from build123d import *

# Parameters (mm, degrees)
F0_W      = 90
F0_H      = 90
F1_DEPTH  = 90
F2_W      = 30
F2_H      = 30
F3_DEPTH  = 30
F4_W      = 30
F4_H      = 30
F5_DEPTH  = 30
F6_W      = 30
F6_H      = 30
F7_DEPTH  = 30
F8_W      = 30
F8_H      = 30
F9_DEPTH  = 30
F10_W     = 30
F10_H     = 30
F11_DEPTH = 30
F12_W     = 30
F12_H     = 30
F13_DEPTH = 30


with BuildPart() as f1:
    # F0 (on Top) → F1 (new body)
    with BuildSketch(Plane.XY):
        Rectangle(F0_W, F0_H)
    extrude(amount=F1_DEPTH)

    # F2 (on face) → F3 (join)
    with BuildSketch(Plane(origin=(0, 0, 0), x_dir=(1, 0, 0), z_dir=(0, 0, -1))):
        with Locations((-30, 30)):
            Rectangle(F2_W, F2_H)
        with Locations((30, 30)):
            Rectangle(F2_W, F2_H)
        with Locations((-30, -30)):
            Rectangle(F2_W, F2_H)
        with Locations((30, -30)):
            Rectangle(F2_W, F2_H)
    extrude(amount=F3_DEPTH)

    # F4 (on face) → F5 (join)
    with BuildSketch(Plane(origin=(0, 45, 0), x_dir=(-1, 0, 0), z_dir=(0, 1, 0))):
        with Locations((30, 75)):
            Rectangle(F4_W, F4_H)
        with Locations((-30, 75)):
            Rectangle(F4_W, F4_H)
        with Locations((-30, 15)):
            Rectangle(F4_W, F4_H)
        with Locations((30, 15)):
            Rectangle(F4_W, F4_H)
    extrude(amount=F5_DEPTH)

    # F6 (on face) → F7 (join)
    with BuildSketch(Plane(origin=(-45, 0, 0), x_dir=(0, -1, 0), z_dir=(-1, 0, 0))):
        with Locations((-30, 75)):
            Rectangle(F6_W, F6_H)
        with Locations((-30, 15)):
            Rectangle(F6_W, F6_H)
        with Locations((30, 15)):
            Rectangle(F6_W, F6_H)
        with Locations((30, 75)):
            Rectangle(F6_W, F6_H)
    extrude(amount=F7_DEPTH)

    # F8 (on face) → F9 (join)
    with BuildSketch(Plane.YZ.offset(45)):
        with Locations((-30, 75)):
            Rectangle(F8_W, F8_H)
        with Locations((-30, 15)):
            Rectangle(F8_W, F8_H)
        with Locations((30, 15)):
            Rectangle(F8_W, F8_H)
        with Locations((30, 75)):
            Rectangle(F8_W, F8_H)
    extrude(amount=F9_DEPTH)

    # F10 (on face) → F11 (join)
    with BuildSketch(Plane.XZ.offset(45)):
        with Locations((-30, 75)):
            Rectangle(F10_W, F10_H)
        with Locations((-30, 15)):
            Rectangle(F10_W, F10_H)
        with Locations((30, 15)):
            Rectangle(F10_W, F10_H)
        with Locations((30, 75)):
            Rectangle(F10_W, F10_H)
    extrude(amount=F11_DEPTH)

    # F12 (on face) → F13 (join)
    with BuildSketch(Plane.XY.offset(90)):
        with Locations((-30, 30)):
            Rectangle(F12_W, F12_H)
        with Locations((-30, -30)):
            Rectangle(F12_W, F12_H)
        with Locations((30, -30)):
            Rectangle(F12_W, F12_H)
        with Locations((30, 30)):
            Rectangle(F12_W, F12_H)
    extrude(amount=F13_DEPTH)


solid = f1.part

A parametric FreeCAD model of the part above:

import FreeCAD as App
import Part
import Sketcher
from FreeCAD import Vector
Q = App.Units.Quantity

doc = App.newDocument("Part")
params = doc.addObject("Spreadsheet::Sheet", "Params")
for row, (alias, value) in enumerate([
    ("sketch1_width", "90 mm"),
    ("pad1_length", "90 mm"),
    ("sketch2_width", "30 mm"),
    ("pad2_length", "30 mm"),
    ("sketch3_width", "30 mm"),
    ("pad3_length", "30 mm"),
    ("sketch4_width", "30 mm"),
    ("pad4_length", "30 mm"),
    ("sketch5_width", "30 mm"),
    ("pad5_length", "30 mm"),
    ("sketch6_width", "30 mm"),
    ("pad6_length", "30 mm"),
    ("sketch7_width", "30 mm"),
    ("pad7_length", "30 mm"),
], start=1):
    params.set(f"A{row}", alias)
    params.set(f"B{row}", "=" + value)
    params.setAlias(f"B{row}", alias)

body = doc.addObject("PartDesign::Body", "Body")

sketch1 = body.newObject("Sketcher::SketchObject", "Sketch")
sketch1.AttachmentSupport = (doc.getObject("XY_Plane"), [""])
sketch1.MapMode = "FlatFace"
sketch1.addGeometry([
    Part.LineSegment(Vector(-45, 45, 0), Vector(-45, -45, 0)),
    Part.LineSegment(Vector(-45, -45, 0), Vector(45, -45, 0)),
    Part.LineSegment(Vector(45, -45, 0), Vector(45, 45, 0)),
    Part.LineSegment(Vector(45, 45, 0), Vector(-45, 45, 0)),
], False)
sketch1.addConstraint([
    Sketcher.Constraint("Coincident", 0, 2, 1, 1),
    Sketcher.Constraint("Coincident", 1, 2, 2, 1),
    Sketcher.Constraint("Coincident", 2, 2, 3, 1),
    Sketcher.Constraint("Coincident", 3, 2, 0, 1),
    Sketcher.Constraint("Vertical", 0),
    Sketcher.Constraint("Horizontal", 1),
    Sketcher.Constraint("Vertical", 2),
    Sketcher.Constraint("Horizontal", 3),
    Sketcher.Constraint("Symmetric", 0, 2, 2, 2, -1, 1),
    Sketcher.Constraint("Equal", 3, 0),
    Sketcher.Constraint("DistanceX", 1, 1, 1, 2, Q("90 mm")),
])
sketch1.setExpression("Constraints[10]", "Params.sketch1_width")
pad1 = body.newObject("PartDesign::Pad", "Pad")
pad1.Profile = sketch1
pad1.setExpression("Length", "Params.pad1_length")

sketch2 = body.newObject("Sketcher::SketchObject", "Sketch001")
sketch2.AttachmentSupport = (doc.getObject("XY_Plane"), [""])
sketch2.MapMode = "FlatFace"
sketch2.addGeometry([
    Part.LineSegment(Vector(-45, -45, 0), Vector(-45, -15, 0)),
    Part.LineSegment(Vector(-45, -15, 0), Vector(-15, -15, 0)),
    Part.LineSegment(Vector(-15, -15, 0), Vector(-15, -45, 0)),
    Part.LineSegment(Vector(-15, -45, 0), Vector(-45, -45, 0)),
    Part.LineSegment(Vector(15, -45, 0), Vector(15, -15, 0)),
    Part.LineSegment(Vector(15, -15, 0), Vector(45, -15, 0)),
    Part.LineSegment(Vector(45, -15, 0), Vector(45, -45, 0)),
    Part.LineSegment(Vector(45, -45, 0), Vector(15, -45, 0)),
    Part.LineSegment(Vector(-45, 15, 0), Vector(-45, 45, 0)),
    Part.LineSegment(Vector(-45, 45, 0), Vector(-15, 45, 0)),
    Part.LineSegment(Vector(-15, 45, 0), Vector(-15, 15, 0)),
    Part.LineSegment(Vector(-15, 15, 0), Vector(-45, 15, 0)),
    Part.LineSegment(Vector(15, 15, 0), Vector(15, 45, 0)),
    Part.LineSegment(Vector(15, 45, 0), Vector(45, 45, 0)),
    Part.LineSegment(Vector(45, 45, 0), Vector(45, 15, 0)),
    Part.LineSegment(Vector(45, 15, 0), Vector(15, 15, 0)),
], False)
sketch2.addConstraint([
    Sketcher.Constraint("Coincident", 0, 2, 1, 1),
    Sketcher.Constraint("Coincident", 1, 2, 2, 1),
    Sketcher.Constraint("Coincident", 2, 2, 3, 1),
    Sketcher.Constraint("Coincident", 3, 2, 0, 1),
    Sketcher.Constraint("Coincident", 4, 2, 5, 1),
    Sketcher.Constraint("Coincident", 5, 2, 6, 1),
    Sketcher.Constraint("Coincident", 6, 2, 7, 1),
    Sketcher.Constraint("Coincident", 7, 2, 4, 1),
    Sketcher.Constraint("Coincident", 8, 2, 9, 1),
    Sketcher.Constraint("Coincident", 9, 2, 10, 1),
    Sketcher.Constraint("Coincident", 10, 2, 11, 1),
    Sketcher.Constraint("Coincident", 11, 2, 8, 1),
    Sketcher.Constraint("Coincident", 12, 2, 13, 1),
    Sketcher.Constraint("Coincident", 13, 2, 14, 1),
    Sketcher.Constraint("Coincident", 14, 2, 15, 1),
    Sketcher.Constraint("Coincident", 15, 2, 12, 1),
    Sketcher.Constraint("Vertical", 0),
    Sketcher.Constraint("Horizontal", 1),
    Sketcher.Constraint("Vertical", 2),
    Sketcher.Constraint("Horizontal", 3),
    Sketcher.Constraint("Vertical", 4),
    Sketcher.Constraint("Horizontal", 5),
    Sketcher.Constraint("Vertical", 6),
    Sketcher.Constraint("Horizontal", 7),
    Sketcher.Constraint("Vertical", 8),
    Sketcher.Constraint("Horizontal", 9),
    Sketcher.Constraint("Vertical", 10),
    Sketcher.Constraint("Horizontal", 11),
    Sketcher.Constraint("Vertical", 12),
    Sketcher.Constraint("Horizontal", 13),
    Sketcher.Constraint("Vertical", 14),
    Sketcher.Constraint("Horizontal", 15),
    Sketcher.Constraint("Symmetric", 6, 2, 8, 2, -1, 1),
    Sketcher.Constraint("Symmetric", 4, 2, 10, 2, -1, 1),
    Sketcher.Constraint("Symmetric", 2, 2, 12, 2, -1, 1),
    Sketcher.Constraint("Symmetric", 0, 2, 14, 2, -1, 1),
    Sketcher.Constraint("Symmetric", 1, 2, 4, 2, -2),
    Sketcher.Constraint("Symmetric", 3, 2, 6, 2, -2),
    Sketcher.Constraint("Equal", 15, 0),
    Sketcher.Constraint("DistanceX", 1, 1, 1, 2, Q("30 mm")),
    Sketcher.Constraint("DistanceX", 0, 2, -1, 1, Q("45 mm")),
    Sketcher.Constraint("DistanceY", 0, 2, -1, 1, Q("15 mm")),
])
sketch2.setExpression("Constraints[39]", "Params.sketch2_width")
pad2 = body.newObject("PartDesign::Pad", "Pad001")
pad2.Profile = sketch2
pad2.setExpression("Length", "Params.pad2_length")
pad2.Reversed = True

sketch3 = body.newObject("Sketcher::SketchObject", "Sketch002")
sketch3.AttachmentSupport = (doc.getObject("XZ_Plane"), [""])
sketch3.MapMode = "FlatFace"
sketch3.AttachmentOffset = App.Placement(Vector(0, 0, -45), App.Rotation())
sketch3.addGeometry([
    Part.LineSegment(Vector(-15, 90, 0), Vector(-15, 60, 0)),
    Part.LineSegment(Vector(-15, 60, 0), Vector(-45, 60, 0)),
    Part.LineSegment(Vector(-45, 60, 0), Vector(-45, 90, 0)),
    Part.LineSegment(Vector(-45, 90, 0), Vector(-15, 90, 0)),
    Part.LineSegment(Vector(45, 90, 0), Vector(45, 60, 0)),
    Part.LineSegment(Vector(45, 60, 0), Vector(15, 60, 0)),
    Part.LineSegment(Vector(15, 60, 0), Vector(15, 90, 0)),
    Part.LineSegment(Vector(15, 90, 0), Vector(45, 90, 0)),
    Part.LineSegment(Vector(45, 30, 0), Vector(45, 0, 0)),
    Part.LineSegment(Vector(45, 0, 0), Vector(15, 0, 0)),
    Part.LineSegment(Vector(15, 0, 0), Vector(15, 30, 0)),
    Part.LineSegment(Vector(15, 30, 0), Vector(45, 30, 0)),
    Part.LineSegment(Vector(-15, 30, 0), Vector(-15, 0, 0)),
    Part.LineSegment(Vector(-15, 0, 0), Vector(-45, 0, 0)),
    Part.LineSegment(Vector(-45, 0, 0), Vector(-45, 30, 0)),
    Part.LineSegment(Vector(-45, 30, 0), Vector(-15, 30, 0)),
], False)
sketch3.addConstraint([
    Sketcher.Constraint("Coincident", 0, 2, 1, 1),
    Sketcher.Constraint("Coincident", 1, 2, 2, 1),
    Sketcher.Constraint("Coincident", 2, 2, 3, 1),
    Sketcher.Constraint("Coincident", 3, 2, 0, 1),
    Sketcher.Constraint("Coincident", 4, 2, 5, 1),
    Sketcher.Constraint("Coincident", 5, 2, 6, 1),
    Sketcher.Constraint("Coincident", 6, 2, 7, 1),
    Sketcher.Constraint("Coincident", 7, 2, 4, 1),
    Sketcher.Constraint("Coincident", 8, 2, 9, 1),
    Sketcher.Constraint("Coincident", 9, 2, 10, 1),
    Sketcher.Constraint("Coincident", 10, 2, 11, 1),
    Sketcher.Constraint("Coincident", 11, 2, 8, 1),
    Sketcher.Constraint("Coincident", 12, 2, 13, 1),
    Sketcher.Constraint("Coincident", 13, 2, 14, 1),
    Sketcher.Constraint("Coincident", 14, 2, 15, 1),
    Sketcher.Constraint("Coincident", 15, 2, 12, 1),
    Sketcher.Constraint("Vertical", 0),
    Sketcher.Constraint("Horizontal", 1),
    Sketcher.Constraint("Vertical", 2),
    Sketcher.Constraint("Horizontal", 3),
    Sketcher.Constraint("Vertical", 4),
    Sketcher.Constraint("Horizontal", 5),
    Sketcher.Constraint("Vertical", 6),
    Sketcher.Constraint("Horizontal", 7),
    Sketcher.Constraint("Vertical", 8),
    Sketcher.Constraint("Horizontal", 9),
    Sketcher.Constraint("Vertical", 10),
    Sketcher.Constraint("Horizontal", 11),
    Sketcher.Constraint("Vertical", 12),
    Sketcher.Constraint("Horizontal", 13),
    Sketcher.Constraint("Vertical", 14),
    Sketcher.Constraint("Horizontal", 15),
    Sketcher.Constraint("Symmetric", 9, 2, 12, 2, -1, 1),
    Sketcher.Constraint("Symmetric", 1, 2, 4, 2, -2),
    Sketcher.Constraint("Symmetric", 3, 2, 6, 2, -2),
    Sketcher.Constraint("Symmetric", 8, 2, 13, 2, -2),
    Sketcher.Constraint("Horizontal", 11, 2, 14, 2),
    Sketcher.Constraint("Vertical", 7, 2, 8, 2),
    Sketcher.Constraint("Vertical", 6, 2, 9, 2),
    Sketcher.Constraint("Equal", 15, 0),
    Sketcher.Constraint("Equal", 6, 8),
    Sketcher.Constraint("DistanceX", 1, 2, 1, 1, Q("30 mm")),
    Sketcher.Constraint("DistanceX", 0, 2, -1, 1, Q("15 mm")),
    Sketcher.Constraint("DistanceY", -1, 1, 0, 2, Q("60 mm")),
])
sketch3.setExpression("Constraints[41]", "Params.sketch3_width")
pad3 = body.newObject("PartDesign::Pad", "Pad002")
pad3.Profile = sketch3
pad3.setExpression("Length", "Params.pad3_length")
pad3.Reversed = True

sketch4 = body.newObject("Sketcher::SketchObject", "Sketch003")
sketch4.AttachmentSupport = (doc.getObject("YZ_Plane"), [""])
sketch4.MapMode = "FlatFace"
sketch4.AttachmentOffset = App.Placement(Vector(0, 0, -45), App.Rotation())
sketch4.addGeometry([
    Part.LineSegment(Vector(45, 90, 0), Vector(45, 60, 0)),
    Part.LineSegment(Vector(45, 60, 0), Vector(15, 60, 0)),
    Part.LineSegment(Vector(15, 60, 0), Vector(15, 90, 0)),
    Part.LineSegment(Vector(15, 90, 0), Vector(45, 90, 0)),
    Part.LineSegment(Vector(45, 30, 0), Vector(45, 0, 0)),
    Part.LineSegment(Vector(45, 0, 0), Vector(15, 0, 0)),
    Part.LineSegment(Vector(15, 0, 0), Vector(15, 30, 0)),
    Part.LineSegment(Vector(15, 30, 0), Vector(45, 30, 0)),
    Part.LineSegment(Vector(-15, 30, 0), Vector(-15, 0, 0)),
    Part.LineSegment(Vector(-15, 0, 0), Vector(-45, 0, 0)),
    Part.LineSegment(Vector(-45, 0, 0), Vector(-45, 30, 0)),
    Part.LineSegment(Vector(-45, 30, 0), Vector(-15, 30, 0)),
    Part.LineSegment(Vector(-15, 90, 0), Vector(-15, 60, 0)),
    Part.LineSegment(Vector(-15, 60, 0), Vector(-45, 60, 0)),
    Part.LineSegment(Vector(-45, 60, 0), Vector(-45, 90, 0)),
    Part.LineSegment(Vector(-45, 90, 0), Vector(-15, 90, 0)),
], False)
sketch4.addConstraint([
    Sketcher.Constraint("Coincident", 0, 2, 1, 1),
    Sketcher.Constraint("Coincident", 1, 2, 2, 1),
    Sketcher.Constraint("Coincident", 2, 2, 3, 1),
    Sketcher.Constraint("Coincident", 3, 2, 0, 1),
    Sketcher.Constraint("Coincident", 4, 2, 5, 1),
    Sketcher.Constraint("Coincident", 5, 2, 6, 1),
    Sketcher.Constraint("Coincident", 6, 2, 7, 1),
    Sketcher.Constraint("Coincident", 7, 2, 4, 1),
    Sketcher.Constraint("Coincident", 8, 2, 9, 1),
    Sketcher.Constraint("Coincident", 9, 2, 10, 1),
    Sketcher.Constraint("Coincident", 10, 2, 11, 1),
    Sketcher.Constraint("Coincident", 11, 2, 8, 1),
    Sketcher.Constraint("Coincident", 12, 2, 13, 1),
    Sketcher.Constraint("Coincident", 13, 2, 14, 1),
    Sketcher.Constraint("Coincident", 14, 2, 15, 1),
    Sketcher.Constraint("Coincident", 15, 2, 12, 1),
    Sketcher.Constraint("Vertical", 0),
    Sketcher.Constraint("Horizontal", 1),
    Sketcher.Constraint("Vertical", 2),
    Sketcher.Constraint("Horizontal", 3),
    Sketcher.Constraint("Vertical", 4),
    Sketcher.Constraint("Horizontal", 5),
    Sketcher.Constraint("Vertical", 6),
    Sketcher.Constraint("Horizontal", 7),
    Sketcher.Constraint("Vertical", 8),
    Sketcher.Constraint("Horizontal", 9),
    Sketcher.Constraint("Vertical", 10),
    Sketcher.Constraint("Horizontal", 11),
    Sketcher.Constraint("Vertical", 12),
    Sketcher.Constraint("Horizontal", 13),
    Sketcher.Constraint("Vertical", 14),
    Sketcher.Constraint("Horizontal", 15),
    Sketcher.Constraint("Symmetric", 5, 2, 8, 2, -1, 1),
    Sketcher.Constraint("Symmetric", 4, 2, 9, 2, -2),
    Sketcher.Constraint("Symmetric", 1, 2, 12, 2, -2),
    Sketcher.Constraint("Symmetric", 3, 2, 14, 2, -2),
    Sketcher.Constraint("Horizontal", 7, 2, 10, 2),
    Sketcher.Constraint("Vertical", 3, 2, 4, 2),
    Sketcher.Constraint("Vertical", 2, 2, 5, 2),
    Sketcher.Constraint("Equal", 15, 0),
    Sketcher.Constraint("Equal", 2, 4),
    Sketcher.Constraint("DistanceX", 1, 2, 1, 1, Q("30 mm")),
    Sketcher.Constraint("DistanceX", -1, 1, 0, 2, Q("45 mm")),
    Sketcher.Constraint("DistanceY", -1, 1, 0, 2, Q("60 mm")),
])
sketch4.setExpression("Constraints[41]", "Params.sketch4_width")
pad4 = body.newObject("PartDesign::Pad", "Pad003")
pad4.Profile = sketch4
pad4.setExpression("Length", "Params.pad4_length")
pad4.Reversed = True

sketch5 = body.newObject("Sketcher::SketchObject", "Sketch004")
sketch5.AttachmentSupport = (doc.getObject("YZ_Plane"), [""])
sketch5.MapMode = "FlatFace"
sketch5.AttachmentOffset = App.Placement(Vector(0, 0, 45), App.Rotation())
sketch5.addGeometry([
    Part.LineSegment(Vector(-45, 90, 0), Vector(-45, 60, 0)),
    Part.LineSegment(Vector(-45, 60, 0), Vector(-15, 60, 0)),
    Part.LineSegment(Vector(-15, 60, 0), Vector(-15, 90, 0)),
    Part.LineSegment(Vector(-15, 90, 0), Vector(-45, 90, 0)),
    Part.LineSegment(Vector(-45, 30, 0), Vector(-45, 0, 0)),
    Part.LineSegment(Vector(-45, 0, 0), Vector(-15, 0, 0)),
    Part.LineSegment(Vector(-15, 0, 0), Vector(-15, 30, 0)),
    Part.LineSegment(Vector(-15, 30, 0), Vector(-45, 30, 0)),
    Part.LineSegment(Vector(15, 30, 0), Vector(15, 0, 0)),
    Part.LineSegment(Vector(15, 0, 0), Vector(45, 0, 0)),
    Part.LineSegment(Vector(45, 0, 0), Vector(45, 30, 0)),
    Part.LineSegment(Vector(45, 30, 0), Vector(15, 30, 0)),
    Part.LineSegment(Vector(15, 90, 0), Vector(15, 60, 0)),
    Part.LineSegment(Vector(15, 60, 0), Vector(45, 60, 0)),
    Part.LineSegment(Vector(45, 60, 0), Vector(45, 90, 0)),
    Part.LineSegment(Vector(45, 90, 0), Vector(15, 90, 0)),
], False)
sketch5.addConstraint([
    Sketcher.Constraint("Coincident", 0, 2, 1, 1),
    Sketcher.Constraint("Coincident", 1, 2, 2, 1),
    Sketcher.Constraint("Coincident", 2, 2, 3, 1),
    Sketcher.Constraint("Coincident", 3, 2, 0, 1),
    Sketcher.Constraint("Coincident", 4, 2, 5, 1),
    Sketcher.Constraint("Coincident", 5, 2, 6, 1),
    Sketcher.Constraint("Coincident", 6, 2, 7, 1),
    Sketcher.Constraint("Coincident", 7, 2, 4, 1),
    Sketcher.Constraint("Coincident", 8, 2, 9, 1),
    Sketcher.Constraint("Coincident", 9, 2, 10, 1),
    Sketcher.Constraint("Coincident", 10, 2, 11, 1),
    Sketcher.Constraint("Coincident", 11, 2, 8, 1),
    Sketcher.Constraint("Coincident", 12, 2, 13, 1),
    Sketcher.Constraint("Coincident", 13, 2, 14, 1),
    Sketcher.Constraint("Coincident", 14, 2, 15, 1),
    Sketcher.Constraint("Coincident", 15, 2, 12, 1),
    Sketcher.Constraint("Vertical", 0),
    Sketcher.Constraint("Horizontal", 1),
    Sketcher.Constraint("Vertical", 2),
    Sketcher.Constraint("Horizontal", 3),
    Sketcher.Constraint("Vertical", 4),
    Sketcher.Constraint("Horizontal", 5),
    Sketcher.Constraint("Vertical", 6),
    Sketcher.Constraint("Horizontal", 7),
    Sketcher.Constraint("Vertical", 8),
    Sketcher.Constraint("Horizontal", 9),
    Sketcher.Constraint("Vertical", 10),
    Sketcher.Constraint("Horizontal", 11),
    Sketcher.Constraint("Vertical", 12),
    Sketcher.Constraint("Horizontal", 13),
    Sketcher.Constraint("Vertical", 14),
    Sketcher.Constraint("Horizontal", 15),
    Sketcher.Constraint("Symmetric", 5, 2, 8, 2, -1, 1),
    Sketcher.Constraint("Symmetric", 4, 2, 9, 2, -2),
    Sketcher.Constraint("Symmetric", 1, 2, 12, 2, -2),
    Sketcher.Constraint("Symmetric", 3, 2, 14, 2, -2),
    Sketcher.Constraint("Horizontal", 7, 2, 10, 2),
    Sketcher.Constraint("Vertical", 3, 2, 4, 2),
    Sketcher.Constraint("Vertical", 2, 2, 5, 2),
    Sketcher.Constraint("Equal", 15, 0),
    Sketcher.Constraint("Equal", 2, 4),
    Sketcher.Constraint("DistanceX", 1, 1, 1, 2, Q("30 mm")),
    Sketcher.Constraint("DistanceX", 0, 2, -1, 1, Q("45 mm")),
    Sketcher.Constraint("DistanceY", -1, 1, 0, 2, Q("60 mm")),
])
sketch5.setExpression("Constraints[41]", "Params.sketch5_width")
pad5 = body.newObject("PartDesign::Pad", "Pad004")
pad5.Profile = sketch5
pad5.setExpression("Length", "Params.pad5_length")

sketch6 = body.newObject("Sketcher::SketchObject", "Sketch005")
sketch6.AttachmentSupport = (doc.getObject("XZ_Plane"), [""])
sketch6.MapMode = "FlatFace"
sketch6.AttachmentOffset = App.Placement(Vector(0, 0, 45), App.Rotation())
sketch6.addGeometry([
    Part.LineSegment(Vector(-45, 90, 0), Vector(-45, 60, 0)),
    Part.LineSegment(Vector(-45, 60, 0), Vector(-15, 60, 0)),
    Part.LineSegment(Vector(-15, 60, 0), Vector(-15, 90, 0)),
    Part.LineSegment(Vector(-15, 90, 0), Vector(-45, 90, 0)),
    Part.LineSegment(Vector(-45, 30, 0), Vector(-45, 0, 0)),
    Part.LineSegment(Vector(-45, 0, 0), Vector(-15, 0, 0)),
    Part.LineSegment(Vector(-15, 0, 0), Vector(-15, 30, 0)),
    Part.LineSegment(Vector(-15, 30, 0), Vector(-45, 30, 0)),
    Part.LineSegment(Vector(15, 30, 0), Vector(15, 0, 0)),
    Part.LineSegment(Vector(15, 0, 0), Vector(45, 0, 0)),
    Part.LineSegment(Vector(45, 0, 0), Vector(45, 30, 0)),
    Part.LineSegment(Vector(45, 30, 0), Vector(15, 30, 0)),
    Part.LineSegment(Vector(15, 90, 0), Vector(15, 60, 0)),
    Part.LineSegment(Vector(15, 60, 0), Vector(45, 60, 0)),
    Part.LineSegment(Vector(45, 60, 0), Vector(45, 90, 0)),
    Part.LineSegment(Vector(45, 90, 0), Vector(15, 90, 0)),
], False)
sketch6.addConstraint([
    Sketcher.Constraint("Coincident", 0, 2, 1, 1),
    Sketcher.Constraint("Coincident", 1, 2, 2, 1),
    Sketcher.Constraint("Coincident", 2, 2, 3, 1),
    Sketcher.Constraint("Coincident", 3, 2, 0, 1),
    Sketcher.Constraint("Coincident", 4, 2, 5, 1),
    Sketcher.Constraint("Coincident", 5, 2, 6, 1),
    Sketcher.Constraint("Coincident", 6, 2, 7, 1),
    Sketcher.Constraint("Coincident", 7, 2, 4, 1),
    Sketcher.Constraint("Coincident", 8, 2, 9, 1),
    Sketcher.Constraint("Coincident", 9, 2, 10, 1),
    Sketcher.Constraint("Coincident", 10, 2, 11, 1),
    Sketcher.Constraint("Coincident", 11, 2, 8, 1),
    Sketcher.Constraint("Coincident", 12, 2, 13, 1),
    Sketcher.Constraint("Coincident", 13, 2, 14, 1),
    Sketcher.Constraint("Coincident", 14, 2, 15, 1),
    Sketcher.Constraint("Coincident", 15, 2, 12, 1),
    Sketcher.Constraint("Vertical", 0),
    Sketcher.Constraint("Horizontal", 1),
    Sketcher.Constraint("Vertical", 2),
    Sketcher.Constraint("Horizontal", 3),
    Sketcher.Constraint("Vertical", 4),
    Sketcher.Constraint("Horizontal", 5),
    Sketcher.Constraint("Vertical", 6),
    Sketcher.Constraint("Horizontal", 7),
    Sketcher.Constraint("Vertical", 8),
    Sketcher.Constraint("Horizontal", 9),
    Sketcher.Constraint("Vertical", 10),
    Sketcher.Constraint("Horizontal", 11),
    Sketcher.Constraint("Vertical", 12),
    Sketcher.Constraint("Horizontal", 13),
    Sketcher.Constraint("Vertical", 14),
    Sketcher.Constraint("Horizontal", 15),
    Sketcher.Constraint("Symmetric", 5, 2, 8, 2, -1, 1),
    Sketcher.Constraint("Symmetric", 4, 2, 9, 2, -2),
    Sketcher.Constraint("Symmetric", 1, 2, 12, 2, -2),
    Sketcher.Constraint("Symmetric", 3, 2, 14, 2, -2),
    Sketcher.Constraint("Horizontal", 7, 2, 10, 2),
    Sketcher.Constraint("Vertical", 3, 2, 4, 2),
    Sketcher.Constraint("Vertical", 2, 2, 5, 2),
    Sketcher.Constraint("Equal", 15, 0),
    Sketcher.Constraint("Equal", 2, 4),
    Sketcher.Constraint("DistanceX", 1, 1, 1, 2, Q("30 mm")),
    Sketcher.Constraint("DistanceX", 0, 2, -1, 1, Q("45 mm")),
    Sketcher.Constraint("DistanceY", -1, 1, 0, 2, Q("60 mm")),
])
sketch6.setExpression("Constraints[41]", "Params.sketch6_width")
pad6 = body.newObject("PartDesign::Pad", "Pad005")
pad6.Profile = sketch6
pad6.setExpression("Length", "Params.pad6_length")

sketch7 = body.newObject("Sketcher::SketchObject", "Sketch006")
sketch7.AttachmentSupport = (doc.getObject("XY_Plane"), [""])
sketch7.MapMode = "FlatFace"
sketch7.AttachmentOffset = App.Placement(Vector(0, 0, 90), App.Rotation())
sketch7.addGeometry([
    Part.LineSegment(Vector(-45, 45, 0), Vector(-45, 15, 0)),
    Part.LineSegment(Vector(-45, 15, 0), Vector(-15, 15, 0)),
    Part.LineSegment(Vector(-15, 15, 0), Vector(-15, 45, 0)),
    Part.LineSegment(Vector(-15, 45, 0), Vector(-45, 45, 0)),
    Part.LineSegment(Vector(-45, -15, 0), Vector(-45, -45, 0)),
    Part.LineSegment(Vector(-45, -45, 0), Vector(-15, -45, 0)),
    Part.LineSegment(Vector(-15, -45, 0), Vector(-15, -15, 0)),
    Part.LineSegment(Vector(-15, -15, 0), Vector(-45, -15, 0)),
    Part.LineSegment(Vector(15, -15, 0), Vector(15, -45, 0)),
    Part.LineSegment(Vector(15, -45, 0), Vector(45, -45, 0)),
    Part.LineSegment(Vector(45, -45, 0), Vector(45, -15, 0)),
    Part.LineSegment(Vector(45, -15, 0), Vector(15, -15, 0)),
    Part.LineSegment(Vector(15, 45, 0), Vector(15, 15, 0)),
    Part.LineSegment(Vector(15, 15, 0), Vector(45, 15, 0)),
    Part.LineSegment(Vector(45, 15, 0), Vector(45, 45, 0)),
    Part.LineSegment(Vector(45, 45, 0), Vector(15, 45, 0)),
], False)
sketch7.addConstraint([
    Sketcher.Constraint("Coincident", 0, 2, 1, 1),
    Sketcher.Constraint("Coincident", 1, 2, 2, 1),
    Sketcher.Constraint("Coincident", 2, 2, 3, 1),
    Sketcher.Constraint("Coincident", 3, 2, 0, 1),
    Sketcher.Constraint("Coincident", 4, 2, 5, 1),
    Sketcher.Constraint("Coincident", 5, 2, 6, 1),
    Sketcher.Constraint("Coincident", 6, 2, 7, 1),
    Sketcher.Constraint("Coincident", 7, 2, 4, 1),
    Sketcher.Constraint("Coincident", 8, 2, 9, 1),
    Sketcher.Constraint("Coincident", 9, 2, 10, 1),
    Sketcher.Constraint("Coincident", 10, 2, 11, 1),
    Sketcher.Constraint("Coincident", 11, 2, 8, 1),
    Sketcher.Constraint("Coincident", 12, 2, 13, 1),
    Sketcher.Constraint("Coincident", 13, 2, 14, 1),
    Sketcher.Constraint("Coincident", 14, 2, 15, 1),
    Sketcher.Constraint("Coincident", 15, 2, 12, 1),
    Sketcher.Constraint("Vertical", 0),
    Sketcher.Constraint("Horizontal", 1),
    Sketcher.Constraint("Vertical", 2),
    Sketcher.Constraint("Horizontal", 3),
    Sketcher.Constraint("Vertical", 4),
    Sketcher.Constraint("Horizontal", 5),
    Sketcher.Constraint("Vertical", 6),
    Sketcher.Constraint("Horizontal", 7),
    Sketcher.Constraint("Vertical", 8),
    Sketcher.Constraint("Horizontal", 9),
    Sketcher.Constraint("Vertical", 10),
    Sketcher.Constraint("Horizontal", 11),
    Sketcher.Constraint("Vertical", 12),
    Sketcher.Constraint("Horizontal", 13),
    Sketcher.Constraint("Vertical", 14),
    Sketcher.Constraint("Horizontal", 15),
    Sketcher.Constraint("Symmetric", 2, 2, 8, 2, -1, 1),
    Sketcher.Constraint("Symmetric", 0, 2, 10, 2, -1, 1),
    Sketcher.Constraint("Symmetric", 6, 2, 12, 2, -1, 1),
    Sketcher.Constraint("Symmetric", 4, 2, 14, 2, -1, 1),
    Sketcher.Constraint("Symmetric", 5, 2, 8, 2, -2),
    Sketcher.Constraint("Symmetric", 7, 2, 10, 2, -2),
    Sketcher.Constraint("Equal", 15, 0),
    Sketcher.Constraint("DistanceX", 1, 1, 1, 2, Q("30 mm")),
    Sketcher.Constraint("DistanceX", 0, 2, -1, 1, Q("45 mm")),
    Sketcher.Constraint("DistanceY", -1, 1, 0, 2, Q("15 mm")),
])
sketch7.setExpression("Constraints[39]", "Params.sketch7_width")
pad7 = body.newObject("PartDesign::Pad", "Pad006")
pad7.Profile = sketch7
pad7.setExpression("Length", "Params.pad7_length")

doc.recompute()
